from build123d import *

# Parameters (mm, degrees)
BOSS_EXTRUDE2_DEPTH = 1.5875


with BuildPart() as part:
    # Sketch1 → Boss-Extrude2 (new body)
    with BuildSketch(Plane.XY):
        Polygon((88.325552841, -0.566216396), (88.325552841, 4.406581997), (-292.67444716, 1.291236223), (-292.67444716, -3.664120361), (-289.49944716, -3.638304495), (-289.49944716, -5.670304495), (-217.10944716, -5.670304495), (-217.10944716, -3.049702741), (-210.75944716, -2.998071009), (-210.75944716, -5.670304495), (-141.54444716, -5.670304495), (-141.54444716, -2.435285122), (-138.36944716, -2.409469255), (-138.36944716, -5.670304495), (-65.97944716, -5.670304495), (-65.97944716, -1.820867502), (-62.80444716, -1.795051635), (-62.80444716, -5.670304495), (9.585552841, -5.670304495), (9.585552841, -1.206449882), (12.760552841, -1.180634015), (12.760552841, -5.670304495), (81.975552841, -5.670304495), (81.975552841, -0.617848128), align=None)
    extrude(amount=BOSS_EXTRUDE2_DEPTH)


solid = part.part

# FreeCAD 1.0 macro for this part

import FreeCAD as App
import Part
import Sketcher
from FreeCAD import Vector
Q = App.Units.Quantity

doc = App.newDocument("Part")
body = doc.addObject("PartDesign::Body", "Body")

# Sketch on XY plane
sketch1 = doc.addObject("Sketcher::SketchObject", "Sketch")
body.addObject(sketch1)
sketch1.AttachmentSupport = (doc.XY_Plane, [""])
sketch1.MapMode = "FlatFace"
sketch1.addGeometry(Part.LineSegment(Vector(88.3, -0.6, 0), Vector(88.3, 4.4, 0)), False)
sketch1.addGeometry(Part.LineSegment(Vector(88.3, 4.4, 0), Vector(-292.7, 1.3, 0)), False)
sketch1.addGeometry(Part.LineSegment(Vector(-292.7, 1.3, 0), Vector(-292.7, -3.7, 0)), False)
sketch1.addGeometry(Part.LineSegment(Vector(-292.7, -3.7, 0), Vector(-289.5, -3.6, 0)), False)
sketch1.addGeometry(Part.LineSegment(Vector(-289.5, -3.6, 0), Vector(-289.5, -5.7, 0)), False)
sketch1.addGeometry(Part.LineSegment(Vector(-289.5, -5.7, 0), Vector(-217.1, -5.7, 0)), False)
sketch1.addGeometry(Part.LineSegment(Vector(-217.1, -5.7, 0), Vector(-217.1, -3, 0)), False)
sketch1.addGeometry(Part.LineSegment(Vector(-217.1, -3, 0), Vector(-210.8, -3, 0)), False)
sketch1.addGeometry(Part.LineSegment(Vector(-210.8, -3, 0), Vector(-210.8, -5.7, 0)), False)
sketch1.addGeometry(Part.LineSegment(Vector(-210.8, -5.7, 0), Vector(-141.5, -5.7, 0)), False)
sketch1.addGeometry(Part.LineSegment(Vector(-141.5, -5.7, 0), Vector(-141.5, -2.4, 0)), False)
sketch1.addGeometry(Part.LineSegment(Vector(-141.5, -2.4, 0), Vector(-138.4, -2.4, 0)), False)
sketch1.addGeometry(Part.LineSegment(Vector(-138.4, -2.4, 0), Vector(-138.4, -5.7, 0)), False)
sketch1.addGeometry(Part.LineSegment(Vector(-138.4, -5.7, 0), Vector(-66, -5.7, 0)), False)
sketch1.addGeometry(Part.LineSegment(Vector(-66, -5.7, 0), Vector(-66, -1.8, 0)), False)
sketch1.addGeometry(Part.LineSegment(Vector(-66, -1.8, 0), Vector(-62.8, -1.8, 0)), False)
sketch1.addGeometry(Part.LineSegment(Vector(-62.8, -1.8, 0), Vector(-62.8, -5.7, 0)), False)
sketch1.addGeometry(Part.LineSegment(Vector(-62.8, -5.7, 0), Vector(9.6, -5.7, 0)), False)
sketch1.addGeometry(Part.LineSegment(Vector(9.6, -5.7, 0), Vector(9.6, -1.2, 0)), False)
sketch1.addGeometry(Part.LineSegment(Vector(9.6, -1.2, 0), Vector(12.8, -1.2, 0)), False)
sketch1.addGeometry(Part.LineSegment(Vector(12.8, -1.2, 0), Vector(12.8, -5.7, 0)), False)
sketch1.addGeometry(Part.LineSegment(Vector(12.8, -5.7, 0), Vector(82, -5.7, 0)), False)
sketch1.addGeometry(Part.LineSegment(Vector(82, -5.7, 0), Vector(82, -0.6, 0)), False)
sketch1.addGeometry(Part.LineSegment(Vector(82, -0.6, 0), Vector(88.3, -0.6, 0)), False)
sketch1.addConstraint(Sketcher.Constraint("Coincident", 0, 2, 1, 1))
sketch1.addConstraint(Sketcher.Constraint("Coincident", 1, 2, 2, 1))
sketch1.addConstraint(Sketcher.Constraint("Coincident", 2, 2, 3, 1))
sketch1.addConstraint(Sketcher.Constraint("Coincident", 3, 2, 4, 1))
sketch1.addConstraint(Sketcher.Constraint("Coincident", 4, 2, 5, 1))
sketch1.addConstraint(Sketcher.Constraint("Coincident", 5, 2, 6, 1))
sketch1.addConstraint(Sketcher.Constraint("Coincident", 6, 2, 7, 1))
sketch1.addConstraint(Sketcher.Constraint("Coincident", 7, 2, 8, 1))
sketch1.addConstraint(Sketcher.Constraint("Coincident", 8, 2, 9, 1))
sketch1.addConstraint(Sketcher.Constraint("Coincident", 9, 2, 10, 1))
sketch1.addConstraint(Sketcher.Constraint("Coincident", 10, 2, 11, 1))
sketch1.addConstraint(Sketcher.Constraint("Coincident", 11, 2, 12, 1))
sketch1.addConstraint(Sketcher.Constraint("Coincident", 12, 2, 13, 1))
sketch1.addConstraint(Sketcher.Constraint("Coincident", 13, 2, 14, 1))
sketch1.addConstraint(Sketcher.Constraint("Coincident", 14, 2, 15, 1))
sketch1.addConstraint(Sketcher.Constraint("Coincident", 15, 2, 16, 1))
sketch1.addConstraint(Sketcher.Constraint("Coincident", 16, 2, 17, 1))
sketch1.addConstraint(Sketcher.Constraint("Coincident", 17, 2, 18, 1))
sketch1.addConstraint(Sketcher.Constraint("Coincident", 18, 2, 19, 1))
sketch1.addConstraint(Sketcher.Constraint("Coincident", 19, 2, 20, 1))
sketch1.addConstraint(Sketcher.Constraint("Coincident", 20, 2, 21, 1))
sketch1.addConstraint(Sketcher.Constraint("Coincident", 21, 2, 22, 1))
sketch1.addConstraint(Sketcher.Constraint("Coincident", 22, 2, 23, 1))
sketch1.addConstraint(Sketcher.Constraint("Coincident", 23, 2, 0, 1))
sketch1.addConstraint(Sketcher.Constraint("Vertical", 0))
sketch1.addConstraint(Sketcher.Constraint("Vertical", 2))
sketch1.addConstraint(Sketcher.Constraint("Vertical", 4))
sketch1.addConstraint(Sketcher.Constraint("Horizontal", 5))
sketch1.addConstraint(Sketcher.Constraint("Vertical", 6))
sketch1.addConstraint(Sketcher.Constraint("Vertical", 8))
sketch1.addConstraint(Sketcher.Constraint("Horizontal", 9))
sketch1.addConstraint(Sketcher.Constraint("Vertical", 10))
sketch1.addConstraint(Sketcher.Constraint("Vertical", 12))
sketch1.addConstraint(Sketcher.Constraint("Horizontal", 13))
sketch1.addConstraint(Sketcher.Constraint("Vertical", 14))
sketch1.addConstraint(Sketcher.Constraint("Vertical", 16))
sketch1.addConstraint(Sketcher.Constraint("Horizontal", 17))
sketch1.addConstraint(Sketcher.Constraint("Vertical", 18))
sketch1.addConstraint(Sketcher.Constraint("Vertical", 20))
sketch1.addConstraint(Sketcher.Constraint("Horizontal", 21))
sketch1.addConstraint(Sketcher.Constraint("Vertical", 22))
sketch1.addConstraint(Sketcher.Constraint("Parallel", 3, 7))
sketch1.addConstraint(Sketcher.Constraint("Parallel", 7, 11))
sketch1.addConstraint(Sketcher.Constraint("Parallel", 11, 15))
sketch1.addConstraint(Sketcher.Constraint("Parallel", 15, 19))
sketch1.addConstraint(Sketcher.Constraint("Parallel", 19, 23))
sketch1.addConstraint(Sketcher.Constraint("Horizontal", 5, 2, 8, 2))
sketch1.addConstraint(Sketcher.Constraint("Horizontal", 9, 2, 12, 2))
sketch1.addConstraint(Sketcher.Constraint("Horizontal", 13, 2, 16, 2))
sketch1.addConstraint(Sketcher.Constraint("Horizontal", 17, 2, 20, 2))
sketch1.addConstraint(Sketcher.Constraint("Equal", 5, 13))
sketch1.addConstraint(Sketcher.Constraint("Equal", 13, 17))
sketch1.addConstraint(Sketcher.Constraint("Equal", 9, 21))
sketch1.addConstraint(Sketcher.Constraint("Equal", 3, 11))
sketch1.addConstraint(Sketcher.Constraint("Equal", 11, 15))
sketch1.addConstraint(Sketcher.Constraint("Equal", 15, 19))
sketch1.addConstraint(Sketcher.Constraint("Equal", 7, 23))
sketch1.addConstraint(Sketcher.Constraint("DistanceX", 1, 2, 0, 2, Q("15 in")))
sketch1.addConstraint(Sketcher.Constraint("DistanceX", 5, 1, 5, 2, Q("2.85 in")))
sketch1.addConstraint(Sketcher.Constraint("DistanceY", 4, 2, 4, 1, Q("0.08 in")))
sketch1.addConstraint(Sketcher.Constraint("DistanceX", 3, 2, 7, 2, Q("3.1 in")))
sketch1.addConstraint(Sketcher.Constraint("DistanceX", 6, 2, 11, 2, Q("3.1 in")))
sketch1.addConstraint(Sketcher.Constraint("DistanceY", 0, 1, 0, 2, Q("4.972798 mm")))
sketch1.addConstraint(Sketcher.Constraint("DistanceY", 6, 1, 6, 2, Q("2.620602 mm")))
sketch1.addConstraint(Sketcher.Constraint("DistanceY", 10, 1, 10, 2, Q("3.235019 mm")))
sketch1.addConstraint(Sketcher.Constraint("DistanceY", 20, 2, 20, 1, Q("4.48967 mm")))
sketch1.addConstraint(Sketcher.Constraint("DistanceY", 7, 2, 11, 2, Q("0.588602 mm")))
sketch1.addConstraint(Sketcher.Constraint("DistanceY", 11, 2, 14, 2, Q("0.588602 mm")))
sketch1.addConstraint(Sketcher.Constraint("DistanceY", 18, 2, 22, 2, Q("0.588602 mm")))
sketch1.addConstraint(Sketcher.Constraint("DistanceY", 2, 2, 2, 1, Q("4.955357 mm")))
sketch1.addConstraint(Sketcher.Constraint("DistanceY", -1, 1, 0, 2, Q("4.406582 mm")))
sketch1.addConstraint(Sketcher.Constraint("DistanceX", -1, 1, 0, 2, Q("88.325553 mm")))
pad1 = doc.addObject("PartDesign::Pad", "Pad")
body.addObject(pad1)
pad1.Profile = sketch1
pad1.Length = Q("0.0625 in")

doc.recompute()
